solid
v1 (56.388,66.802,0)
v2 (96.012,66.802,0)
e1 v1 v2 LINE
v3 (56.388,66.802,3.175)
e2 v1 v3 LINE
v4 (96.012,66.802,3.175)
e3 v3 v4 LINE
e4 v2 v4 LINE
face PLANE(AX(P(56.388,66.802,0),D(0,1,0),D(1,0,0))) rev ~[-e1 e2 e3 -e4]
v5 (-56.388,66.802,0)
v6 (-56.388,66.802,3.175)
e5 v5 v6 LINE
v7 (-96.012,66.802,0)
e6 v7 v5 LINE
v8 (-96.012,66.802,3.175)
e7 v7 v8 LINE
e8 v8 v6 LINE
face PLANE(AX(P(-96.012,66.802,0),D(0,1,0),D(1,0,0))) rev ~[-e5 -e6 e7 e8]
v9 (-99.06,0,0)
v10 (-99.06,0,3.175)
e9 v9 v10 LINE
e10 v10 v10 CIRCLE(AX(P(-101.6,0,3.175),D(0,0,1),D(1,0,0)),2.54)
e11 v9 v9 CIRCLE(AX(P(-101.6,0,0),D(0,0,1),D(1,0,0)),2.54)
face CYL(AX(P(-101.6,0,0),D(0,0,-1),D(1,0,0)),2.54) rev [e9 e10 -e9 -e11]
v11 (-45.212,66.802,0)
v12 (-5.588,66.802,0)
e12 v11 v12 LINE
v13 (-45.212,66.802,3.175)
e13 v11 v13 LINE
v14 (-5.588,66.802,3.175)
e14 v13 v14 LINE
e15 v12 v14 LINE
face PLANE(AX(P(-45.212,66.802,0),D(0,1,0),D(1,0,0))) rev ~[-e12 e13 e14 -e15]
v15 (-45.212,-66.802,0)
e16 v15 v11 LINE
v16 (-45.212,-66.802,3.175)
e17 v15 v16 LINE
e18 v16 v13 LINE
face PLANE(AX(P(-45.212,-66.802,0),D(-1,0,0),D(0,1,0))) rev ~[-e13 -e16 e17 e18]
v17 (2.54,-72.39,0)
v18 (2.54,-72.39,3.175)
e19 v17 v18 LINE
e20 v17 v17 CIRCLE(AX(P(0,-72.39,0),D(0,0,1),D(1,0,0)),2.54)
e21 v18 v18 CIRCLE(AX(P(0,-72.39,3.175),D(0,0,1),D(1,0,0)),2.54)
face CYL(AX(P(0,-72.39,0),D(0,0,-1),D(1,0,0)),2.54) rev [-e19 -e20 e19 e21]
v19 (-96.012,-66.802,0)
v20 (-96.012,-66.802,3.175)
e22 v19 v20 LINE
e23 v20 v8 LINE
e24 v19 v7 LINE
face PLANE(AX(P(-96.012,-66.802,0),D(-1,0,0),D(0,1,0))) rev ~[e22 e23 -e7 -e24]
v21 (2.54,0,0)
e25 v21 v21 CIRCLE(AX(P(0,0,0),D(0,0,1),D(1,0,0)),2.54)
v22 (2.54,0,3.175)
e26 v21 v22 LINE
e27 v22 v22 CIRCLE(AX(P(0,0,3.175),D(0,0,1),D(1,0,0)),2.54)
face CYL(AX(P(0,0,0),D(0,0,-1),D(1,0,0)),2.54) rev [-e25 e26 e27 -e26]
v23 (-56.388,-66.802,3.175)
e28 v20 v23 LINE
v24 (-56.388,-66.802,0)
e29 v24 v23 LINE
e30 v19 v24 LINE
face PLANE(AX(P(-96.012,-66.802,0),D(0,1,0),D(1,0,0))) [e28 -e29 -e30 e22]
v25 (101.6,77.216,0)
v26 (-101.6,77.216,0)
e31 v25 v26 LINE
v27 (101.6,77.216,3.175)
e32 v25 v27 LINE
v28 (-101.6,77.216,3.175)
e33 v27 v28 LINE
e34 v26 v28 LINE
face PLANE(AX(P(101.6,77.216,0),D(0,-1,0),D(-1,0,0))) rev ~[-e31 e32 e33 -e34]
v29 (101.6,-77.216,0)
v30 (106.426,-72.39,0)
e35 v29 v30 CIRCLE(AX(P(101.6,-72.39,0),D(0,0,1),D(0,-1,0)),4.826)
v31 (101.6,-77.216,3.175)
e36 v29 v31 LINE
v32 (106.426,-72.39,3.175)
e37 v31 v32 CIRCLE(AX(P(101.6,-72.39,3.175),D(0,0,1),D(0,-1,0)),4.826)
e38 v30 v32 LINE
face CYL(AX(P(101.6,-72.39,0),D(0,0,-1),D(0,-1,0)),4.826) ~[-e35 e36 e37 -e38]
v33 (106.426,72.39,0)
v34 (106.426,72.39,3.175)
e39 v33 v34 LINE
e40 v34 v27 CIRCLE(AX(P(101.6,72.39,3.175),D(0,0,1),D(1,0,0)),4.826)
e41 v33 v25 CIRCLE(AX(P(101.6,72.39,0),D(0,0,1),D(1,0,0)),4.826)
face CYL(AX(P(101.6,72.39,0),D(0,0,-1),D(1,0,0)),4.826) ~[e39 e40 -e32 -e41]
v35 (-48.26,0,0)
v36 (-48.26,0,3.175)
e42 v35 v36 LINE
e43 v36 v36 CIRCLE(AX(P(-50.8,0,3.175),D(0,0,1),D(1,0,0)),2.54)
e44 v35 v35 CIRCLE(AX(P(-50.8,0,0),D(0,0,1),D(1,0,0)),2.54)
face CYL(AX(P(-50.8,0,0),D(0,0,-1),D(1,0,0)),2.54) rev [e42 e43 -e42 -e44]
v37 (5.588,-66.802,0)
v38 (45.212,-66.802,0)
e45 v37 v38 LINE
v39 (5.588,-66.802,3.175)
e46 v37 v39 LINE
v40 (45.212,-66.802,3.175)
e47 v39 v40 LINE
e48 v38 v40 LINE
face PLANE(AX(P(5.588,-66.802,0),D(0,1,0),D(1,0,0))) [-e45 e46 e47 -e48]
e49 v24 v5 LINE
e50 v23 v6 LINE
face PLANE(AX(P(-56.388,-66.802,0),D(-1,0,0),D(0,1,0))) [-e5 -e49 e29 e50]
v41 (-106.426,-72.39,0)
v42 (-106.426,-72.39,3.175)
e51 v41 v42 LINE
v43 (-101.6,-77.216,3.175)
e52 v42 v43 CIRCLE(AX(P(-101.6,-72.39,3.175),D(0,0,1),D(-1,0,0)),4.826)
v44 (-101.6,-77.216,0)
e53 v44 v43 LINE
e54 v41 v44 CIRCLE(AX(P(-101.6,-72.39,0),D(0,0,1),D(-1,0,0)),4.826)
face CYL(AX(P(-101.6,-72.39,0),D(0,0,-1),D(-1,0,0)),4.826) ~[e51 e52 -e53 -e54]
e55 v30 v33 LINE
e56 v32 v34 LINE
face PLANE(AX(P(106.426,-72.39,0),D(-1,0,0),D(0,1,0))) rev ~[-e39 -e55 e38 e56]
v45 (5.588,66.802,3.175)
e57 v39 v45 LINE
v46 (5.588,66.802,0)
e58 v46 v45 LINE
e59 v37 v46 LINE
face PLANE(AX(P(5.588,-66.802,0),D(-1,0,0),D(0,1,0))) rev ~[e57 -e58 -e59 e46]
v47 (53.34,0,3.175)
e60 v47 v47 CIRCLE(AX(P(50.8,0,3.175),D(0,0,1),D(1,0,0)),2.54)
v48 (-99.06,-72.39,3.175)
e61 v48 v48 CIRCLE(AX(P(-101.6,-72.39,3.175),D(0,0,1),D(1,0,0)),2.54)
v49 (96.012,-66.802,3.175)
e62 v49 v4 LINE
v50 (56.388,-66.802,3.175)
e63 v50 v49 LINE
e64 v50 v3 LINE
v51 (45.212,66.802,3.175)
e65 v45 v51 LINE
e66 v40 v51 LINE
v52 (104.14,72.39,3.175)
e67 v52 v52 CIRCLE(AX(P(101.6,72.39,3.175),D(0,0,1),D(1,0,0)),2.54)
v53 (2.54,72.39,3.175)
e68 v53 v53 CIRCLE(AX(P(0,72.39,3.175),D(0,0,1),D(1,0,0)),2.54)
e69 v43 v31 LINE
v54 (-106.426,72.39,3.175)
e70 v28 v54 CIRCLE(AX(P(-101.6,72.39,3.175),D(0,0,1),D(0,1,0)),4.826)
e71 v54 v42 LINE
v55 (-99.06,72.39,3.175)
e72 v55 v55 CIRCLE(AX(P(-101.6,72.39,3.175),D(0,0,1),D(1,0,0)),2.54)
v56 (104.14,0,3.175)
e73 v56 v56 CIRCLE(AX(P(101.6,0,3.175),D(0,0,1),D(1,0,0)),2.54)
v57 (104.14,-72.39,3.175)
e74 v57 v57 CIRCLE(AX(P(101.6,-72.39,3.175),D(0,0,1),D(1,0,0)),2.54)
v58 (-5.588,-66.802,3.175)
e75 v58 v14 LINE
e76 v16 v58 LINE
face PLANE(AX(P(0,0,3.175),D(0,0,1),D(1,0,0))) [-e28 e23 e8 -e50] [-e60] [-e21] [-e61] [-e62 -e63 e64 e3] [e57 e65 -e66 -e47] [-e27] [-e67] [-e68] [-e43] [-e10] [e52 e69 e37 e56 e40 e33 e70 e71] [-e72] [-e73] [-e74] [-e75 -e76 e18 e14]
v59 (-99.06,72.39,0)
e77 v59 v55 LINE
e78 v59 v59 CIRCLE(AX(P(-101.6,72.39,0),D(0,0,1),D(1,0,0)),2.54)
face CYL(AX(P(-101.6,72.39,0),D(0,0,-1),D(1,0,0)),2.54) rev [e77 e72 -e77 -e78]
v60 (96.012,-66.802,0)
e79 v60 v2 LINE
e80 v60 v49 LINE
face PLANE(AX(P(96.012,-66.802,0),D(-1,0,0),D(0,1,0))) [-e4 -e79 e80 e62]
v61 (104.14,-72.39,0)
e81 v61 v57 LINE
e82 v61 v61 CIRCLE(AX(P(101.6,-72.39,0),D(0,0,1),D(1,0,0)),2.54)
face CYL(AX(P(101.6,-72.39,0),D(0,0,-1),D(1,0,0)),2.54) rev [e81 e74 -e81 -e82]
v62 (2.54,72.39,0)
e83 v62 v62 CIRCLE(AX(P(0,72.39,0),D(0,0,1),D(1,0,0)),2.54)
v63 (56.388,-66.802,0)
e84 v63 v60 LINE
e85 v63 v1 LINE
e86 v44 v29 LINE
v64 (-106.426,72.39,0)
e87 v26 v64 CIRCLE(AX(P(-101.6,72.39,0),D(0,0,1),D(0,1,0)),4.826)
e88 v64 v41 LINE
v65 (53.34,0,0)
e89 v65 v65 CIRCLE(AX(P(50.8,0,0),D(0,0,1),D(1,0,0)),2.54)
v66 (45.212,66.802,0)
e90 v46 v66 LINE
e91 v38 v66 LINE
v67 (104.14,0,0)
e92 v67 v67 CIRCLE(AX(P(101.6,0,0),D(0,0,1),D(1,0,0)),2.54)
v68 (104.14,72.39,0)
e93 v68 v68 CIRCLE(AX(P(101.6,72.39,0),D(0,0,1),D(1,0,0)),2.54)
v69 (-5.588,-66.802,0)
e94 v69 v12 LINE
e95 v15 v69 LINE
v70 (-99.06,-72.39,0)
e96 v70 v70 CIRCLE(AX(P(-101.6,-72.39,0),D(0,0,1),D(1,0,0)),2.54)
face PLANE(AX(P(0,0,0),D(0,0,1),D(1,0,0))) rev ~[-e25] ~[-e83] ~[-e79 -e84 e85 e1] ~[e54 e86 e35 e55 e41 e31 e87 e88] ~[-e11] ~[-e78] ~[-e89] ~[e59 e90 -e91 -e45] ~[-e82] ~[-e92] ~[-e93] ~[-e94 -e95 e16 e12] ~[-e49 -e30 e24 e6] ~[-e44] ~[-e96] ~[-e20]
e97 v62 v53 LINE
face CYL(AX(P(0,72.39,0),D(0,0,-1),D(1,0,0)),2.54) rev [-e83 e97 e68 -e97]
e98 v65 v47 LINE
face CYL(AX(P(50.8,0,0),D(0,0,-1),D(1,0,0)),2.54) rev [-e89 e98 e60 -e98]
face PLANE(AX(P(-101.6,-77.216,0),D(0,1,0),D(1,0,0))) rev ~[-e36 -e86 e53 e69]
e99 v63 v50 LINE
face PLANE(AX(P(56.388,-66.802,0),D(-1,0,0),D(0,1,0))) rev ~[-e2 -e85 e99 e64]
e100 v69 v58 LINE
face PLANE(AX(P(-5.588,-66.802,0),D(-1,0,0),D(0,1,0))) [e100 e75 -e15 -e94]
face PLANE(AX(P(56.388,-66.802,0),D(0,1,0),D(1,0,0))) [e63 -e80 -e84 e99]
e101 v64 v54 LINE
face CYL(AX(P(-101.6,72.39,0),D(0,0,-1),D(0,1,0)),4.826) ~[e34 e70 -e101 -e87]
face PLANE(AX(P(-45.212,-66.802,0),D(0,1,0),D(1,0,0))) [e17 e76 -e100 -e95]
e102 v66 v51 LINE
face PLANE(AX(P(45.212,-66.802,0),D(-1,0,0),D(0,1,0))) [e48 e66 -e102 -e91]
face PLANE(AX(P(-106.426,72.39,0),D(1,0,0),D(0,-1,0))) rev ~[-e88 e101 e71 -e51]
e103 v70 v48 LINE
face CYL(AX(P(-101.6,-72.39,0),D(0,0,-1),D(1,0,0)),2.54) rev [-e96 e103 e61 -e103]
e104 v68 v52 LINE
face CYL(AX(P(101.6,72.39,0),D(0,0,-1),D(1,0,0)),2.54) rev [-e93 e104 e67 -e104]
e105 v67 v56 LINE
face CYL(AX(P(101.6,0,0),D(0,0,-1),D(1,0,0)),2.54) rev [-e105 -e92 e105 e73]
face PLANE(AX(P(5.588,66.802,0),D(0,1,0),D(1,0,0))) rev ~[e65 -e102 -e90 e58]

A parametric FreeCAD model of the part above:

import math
import FreeCAD as App
import Part
import Sketcher
from FreeCAD import Vector
Q = App.Units.Quantity

doc = App.newDocument("Part")
body = doc.addObject("PartDesign::Body", "Body")

# Sketch on XY plane
sketch1 = body.newObject("Sketcher::SketchObject", "Sketch")
sketch1.AttachmentSupport = (doc.getObject("XY_Plane"), [""])
sketch1.MapMode = "FlatFace"
sketch1.addGeometry(Part.ArcOfCircle(Part.Circle(Vector(101.6, 72.4, 0), Vector(0, 0, 1), 4.8), math.radians(0), math.radians(90)), False)
sketch1.addGeometry(Part.LineSegment(Vector(101.6, 77.2, 0), Vector(-101.6, 77.2, 0)), False)
sketch1.addGeometry(Part.ArcOfCircle(Part.Circle(Vector(-101.6, 72.4, 0), Vector(0, 0, 1), 4.8), math.radians(90), math.radians(180)), False)
sketch1.addGeometry(Part.LineSegment(Vector(-106.4, 72.4, 0), Vector(-106.4, -72.4, 0)), False)
sketch1.addGeometry(Part.ArcOfCircle(Part.Circle(Vector(-101.6, -72.4, 0), Vector(0, 0, 1), 4.8), math.radians(180), math.radians(270)), False)
sketch1.addGeometry(Part.LineSegment(Vector(-101.6, -77.2, 0), Vector(101.6, -77.2, 0)), False)
sketch1.addGeometry(Part.ArcOfCircle(Part.Circle(Vector(101.6, -72.4, 0), Vector(0, 0, 1), 4.8), math.radians(-90), math.radians(0)), False)
sketch1.addGeometry(Part.LineSegment(Vector(106.4, -72.4, 0), Vector(106.4, 72.4, 0)), False)
sketch1.addGeometry(Part.Circle(Vector(-101.6, -72.4, 0), Vector(0, 0, 1), 2.5), False)
sketch1.addGeometry(Part.Circle(Vector(0, -72.4, 0), Vector(0, 0, 1), 2.5), False)
sketch1.addGeometry(Part.Circle(Vector(101.6, -72.4, 0), Vector(0, 0, 1), 2.5), False)
sketch1.addGeometry(Part.Circle(Vector(-101.6, 0, 0), Vector(0, 0, 1), 2.5), False)
sketch1.addGeometry(Part.LineSegment(Vector(-56.4, -66.8, 0), Vector(-96, -66.8, 0)), False)
sketch1.addGeometry(Part.LineSegment(Vector(-96, -66.8, 0), Vector(-96, 66.8, 0)), False)
sketch1.addGeometry(Part.LineSegment(Vector(-96, 66.8, 0), Vector(-56.4, 66.8, 0)), False)
sketch1.addGeometry(Part.LineSegment(Vector(-56.4, 66.8, 0), Vector(-56.4, -66.8, 0)), False)
sketch1.addGeometry(Part.Circle(Vector(-50.8, 0, 0), Vector(0, 0, 1), 2.5), False)
sketch1.addGeometry(Part.LineSegment(Vector(-5.6, -66.8, 0), Vector(-45.2, -66.8, 0)), False)
sketch1.addGeometry(Part.LineSegment(Vector(-45.2, -66.8, 0), Vector(-45.2, 66.8, 0)), False)
sketch1.addGeometry(Part.LineSegment(Vector(-45.2, 66.8, 0), Vector(-5.6, 66.8, 0)), False)
sketch1.addGeometry(Part.LineSegment(Vector(-5.6, 66.8, 0), Vector(-5.6, -66.8, 0)), False)
sketch1.addGeometry(Part.Circle(Vector(-101.6, 72.4, 0), Vector(0, 0, 1), 2.5), False)
sketch1.addGeometry(Part.Circle(Vector(0, 0, 0), Vector(0, 0, 1), 2.5), False)
sketch1.addGeometry(Part.LineSegment(Vector(45.2, -66.8, 0), Vector(5.6, -66.8, 0)), False)
sketch1.addGeometry(Part.LineSegment(Vector(5.6, -66.8, 0), Vector(5.6, 66.8, 0)), False)
sketch1.addGeometry(Part.LineSegment(Vector(5.6, 66.8, 0), Vector(45.2, 66.8, 0)), False)
sketch1.addGeometry(Part.LineSegment(Vector(45.2, 66.8, 0), Vector(45.2, -66.8, 0)), False)
sketch1.addGeometry(Part.Circle(Vector(50.8, 0, 0), Vector(0, 0, 1), 2.5), False)
sketch1.addGeometry(Part.LineSegment(Vector(96, -66.8, 0), Vector(56.4, -66.8, 0)), False)
sketch1.addGeometry(Part.LineSegment(Vector(56.4, -66.8, 0), Vector(56.4, 66.8, 0)), False)
sketch1.addGeometry(Part.LineSegment(Vector(56.4, 66.8, 0), Vector(96, 66.8, 0)), False)
sketch1.addGeometry(Part.LineSegment(Vector(96, 66.8, 0), Vector(96, -66.8, 0)), False)
sketch1.addGeometry(Part.Circle(Vector(101.6, 0, 0), Vector(0, 0, 1), 2.5), False)
sketch1.addGeometry(Part.Circle(Vector(0, 72.4, 0), Vector(0, 0, 1), 2.5), False)
sketch1.addGeometry(Part.Circle(Vector(101.6, 72.4, 0), Vector(0, 0, 1), 2.5), False)
sketch1.addConstraint(Sketcher.Constraint("Tangent", 0, 2, 1, 1))
sketch1.addConstraint(Sketcher.Constraint("Tangent", 1, 2, 2, 1))
sketch1.addConstraint(Sketcher.Constraint("Tangent", 2, 2, 3, 1))
sketch1.addConstraint(Sketcher.Constraint("Tangent", 3, 2, 4, 1))
sketch1.addConstraint(Sketcher.Constraint("Tangent", 4, 2, 5, 1))
sketch1.addConstraint(Sketcher.Constraint("Tangent", 5, 2, 6, 1))
sketch1.addConstraint(Sketcher.Constraint("Tangent", 6, 2, 7, 1))
sketch1.addConstraint(Sketcher.Constraint("Tangent", 7, 2, 0, 1))
sketch1.addConstraint(Sketcher.Constraint("Coincident", 12, 2, 13, 1))
sketch1.addConstraint(Sketcher.Constraint("Coincident", 13, 2, 14, 1))
sketch1.addConstraint(Sketcher.Constraint("Coincident", 14, 2, 15, 1))
sketch1.addConstraint(Sketcher.Constraint("Coincident", 15, 2, 12, 1))
sketch1.addConstraint(Sketcher.Constraint("Coincident", 17, 2, 18, 1))
sketch1.addConstraint(Sketcher.Constraint("Coincident", 18, 2, 19, 1))
sketch1.addConstraint(Sketcher.Constraint("Coincident", 19, 2, 20, 1))
sketch1.addConstraint(Sketcher.Constraint("Coincident", 20, 2, 17, 1))
sketch1.addConstraint(Sketcher.Constraint("Coincident", 23, 2, 24, 1))
sketch1.addConstraint(Sketcher.Constraint("Coincident", 24, 2, 25, 1))
sketch1.addConstraint(Sketcher.Constraint("Coincident", 25, 2, 26, 1))
sketch1.addConstraint(Sketcher.Constraint("Coincident", 26, 2, 23, 1))
sketch1.addConstraint(Sketcher.Constraint("Coincident", 28, 2, 29, 1))
sketch1.addConstraint(Sketcher.Constraint("Coincident", 29, 2, 30, 1))
sketch1.addConstraint(Sketcher.Constraint("Coincident", 30, 2, 31, 1))
sketch1.addConstraint(Sketcher.Constraint("Coincident", 31, 2, 28, 1))
sketch1.addConstraint(Sketcher.Constraint("Horizontal", 1))
sketch1.addConstraint(Sketcher.Constraint("Vertical", 3))
sketch1.addConstraint(Sketcher.Constraint("Horizontal", 5))
sketch1.addConstraint(Sketcher.Constraint("Vertical", 7))
sketch1.addConstraint(Sketcher.Constraint("Horizontal", 12))
sketch1.addConstraint(Sketcher.Constraint("Vertical", 13))
sketch1.addConstraint(Sketcher.Constraint("Horizontal", 14))
sketch1.addConstraint(Sketcher.Constraint("Vertical", 15))
sketch1.addConstraint(Sketcher.Constraint("Horizontal", 17))
sketch1.addConstraint(Sketcher.Constraint("Vertical", 18))
sketch1.addConstraint(Sketcher.Constraint("Horizontal", 19))
sketch1.addConstraint(Sketcher.Constraint("Vertical", 20))
sketch1.addConstraint(Sketcher.Constraint("Horizontal", 23))
sketch1.addConstraint(Sketcher.Constraint("Vertical", 24))
sketch1.addConstraint(Sketcher.Constraint("Horizontal", 25))
sketch1.addConstraint(Sketcher.Constraint("Vertical", 26))
sketch1.addConstraint(Sketcher.Constraint("Horizontal", 28))
sketch1.addConstraint(Sketcher.Constraint("Vertical", 29))
sketch1.addConstraint(Sketcher.Constraint("Horizontal", 30))
sketch1.addConstraint(Sketcher.Constraint("Vertical", 31))
sketch1.addConstraint(Sketcher.Constraint("Coincident", 22, 3, -1, 1))
sketch1.addConstraint(Sketcher.Constraint("Coincident", 8, 3, 4, 3))
sketch1.addConstraint(Sketcher.Constraint("Coincident", 10, 3, 6, 3))
sketch1.addConstraint(Sketcher.Constraint("Coincident", 21, 3, 2, 3))
sketch1.addConstraint(Sketcher.Constraint("Coincident", 34, 3, 0, 3))
sketch1.addConstraint(Sketcher.Constraint("Equal", 0, 2))
sketch1.addConstraint(Sketcher.Constraint("Equal", 2, 4))
sketch1.addConstraint(Sketcher.Constraint("Equal", 4, 6))
sketch1.addConstraint(Sketcher.Constraint("Equal", 8, 9))
sketch1.addConstraint(Sketcher.Constraint("Equal", 9, 10))
sketch1.addConstraint(Sketcher.Constraint("Equal", 10, 11))
sketch1.addConstraint(Sketcher.Constraint("Equal", 11, 16))
sketch1.addConstraint(Sketcher.Constraint("Equal", 16, 21))
sketch1.addConstraint(Sketcher.Constraint("Equal", 21, 22))
sketch1.addConstraint(Sketcher.Constraint("Equal", 22, 27))
sketch1.addConstraint(Sketcher.Constraint("Equal", 27, 32))
sketch1.addConstraint(Sketcher.Constraint("Equal", 32, 33))
sketch1.addConstraint(Sketcher.Constraint("Equal", 33, 34))
sketch1.addConstraint(Sketcher.Constraint("Symmetric", 0, 3, 4, 3, -1, 1))
sketch1.addConstraint(Sketcher.Constraint("Symmetric", 16, 3, 27, 3, -1, 1))
sketch1.addConstraint(Sketcher.Constraint("Symmetric", 11, 3, 32, 3, -1, 1))
sketch1.addConstraint(Sketcher.Constraint("Symmetric", 9, 3, 33, 3, -1, 1))
sketch1.addConstraint(Sketcher.Constraint("Symmetric", 19, 2, 23, 2, -1, 1))
sketch1.addConstraint(Sketcher.Constraint("Symmetric", 17, 2, 25, 2, -1, 1))
sketch1.addConstraint(Sketcher.Constraint("Symmetric", 14, 2, 28, 2, -1, 1))
sketch1.addConstraint(Sketcher.Constraint("Symmetric", 12, 2, 30, 2, -1, 1))
sketch1.addConstraint(Sketcher.Constraint("PointOnObject", 9, 3, -2))
sketch1.addConstraint(Sketcher.Constraint("PointOnObject", 11, 3, -1))
sketch1.addConstraint(Sketcher.Constraint("PointOnObject", 16, 3, -1))
sketch1.addConstraint(Sketcher.Constraint("Horizontal", 8, 3, 9, 3))
sketch1.addConstraint(Sketcher.Constraint("Horizontal", 15, 2, 17, 2))
sketch1.addConstraint(Sketcher.Constraint("Horizontal", 14, 2, 18, 2))
sketch1.addConstraint(Sketcher.Constraint("Horizontal", 20, 2, 23, 2))
sketch1.addConstraint(Sketcher.Constraint("Vertical", 8, 3, 11, 3))
sketch1.addConstraint(Sketcher.Constraint("Equal", 14, 17))
sketch1.addConstraint(Sketcher.Constraint("Diameter", 8, Q("0.2 in")))
sketch1.addConstraint(Sketcher.Constraint("DistanceX", 1, 2, 1, 1, Q("8 in")))
sketch1.addConstraint(Sketcher.Constraint("Radius", 0, Q("0.19 in")))
sketch1.addConstraint(Sketcher.Constraint("DistanceY", 3, 2, 3, 1, Q("5.7 in")))
sketch1.addConstraint(Sketcher.Constraint("DistanceX", 16, 3, -1, 1, Q("2 in")))
sketch1.addConstraint(Sketcher.Constraint("DistanceX", 12, 2, 17, 2, Q("2 in")))
sketch1.addConstraint(Sketcher.Constraint("DistanceX", 17, 2, 23, 2, Q("2 in")))
sketch1.addConstraint(Sketcher.Constraint("DistanceX", 12, 2, 12, 1, Q("1.56 in")))
sketch1.addConstraint(Sketcher.Constraint("DistanceY", 13, 1, 13, 2, Q("5.26 in")))
pad1 = body.newObject("PartDesign::Pad", "Pad")
pad1.Profile = sketch1
pad1.Length = Q("0.125 in")

doc.recompute()
